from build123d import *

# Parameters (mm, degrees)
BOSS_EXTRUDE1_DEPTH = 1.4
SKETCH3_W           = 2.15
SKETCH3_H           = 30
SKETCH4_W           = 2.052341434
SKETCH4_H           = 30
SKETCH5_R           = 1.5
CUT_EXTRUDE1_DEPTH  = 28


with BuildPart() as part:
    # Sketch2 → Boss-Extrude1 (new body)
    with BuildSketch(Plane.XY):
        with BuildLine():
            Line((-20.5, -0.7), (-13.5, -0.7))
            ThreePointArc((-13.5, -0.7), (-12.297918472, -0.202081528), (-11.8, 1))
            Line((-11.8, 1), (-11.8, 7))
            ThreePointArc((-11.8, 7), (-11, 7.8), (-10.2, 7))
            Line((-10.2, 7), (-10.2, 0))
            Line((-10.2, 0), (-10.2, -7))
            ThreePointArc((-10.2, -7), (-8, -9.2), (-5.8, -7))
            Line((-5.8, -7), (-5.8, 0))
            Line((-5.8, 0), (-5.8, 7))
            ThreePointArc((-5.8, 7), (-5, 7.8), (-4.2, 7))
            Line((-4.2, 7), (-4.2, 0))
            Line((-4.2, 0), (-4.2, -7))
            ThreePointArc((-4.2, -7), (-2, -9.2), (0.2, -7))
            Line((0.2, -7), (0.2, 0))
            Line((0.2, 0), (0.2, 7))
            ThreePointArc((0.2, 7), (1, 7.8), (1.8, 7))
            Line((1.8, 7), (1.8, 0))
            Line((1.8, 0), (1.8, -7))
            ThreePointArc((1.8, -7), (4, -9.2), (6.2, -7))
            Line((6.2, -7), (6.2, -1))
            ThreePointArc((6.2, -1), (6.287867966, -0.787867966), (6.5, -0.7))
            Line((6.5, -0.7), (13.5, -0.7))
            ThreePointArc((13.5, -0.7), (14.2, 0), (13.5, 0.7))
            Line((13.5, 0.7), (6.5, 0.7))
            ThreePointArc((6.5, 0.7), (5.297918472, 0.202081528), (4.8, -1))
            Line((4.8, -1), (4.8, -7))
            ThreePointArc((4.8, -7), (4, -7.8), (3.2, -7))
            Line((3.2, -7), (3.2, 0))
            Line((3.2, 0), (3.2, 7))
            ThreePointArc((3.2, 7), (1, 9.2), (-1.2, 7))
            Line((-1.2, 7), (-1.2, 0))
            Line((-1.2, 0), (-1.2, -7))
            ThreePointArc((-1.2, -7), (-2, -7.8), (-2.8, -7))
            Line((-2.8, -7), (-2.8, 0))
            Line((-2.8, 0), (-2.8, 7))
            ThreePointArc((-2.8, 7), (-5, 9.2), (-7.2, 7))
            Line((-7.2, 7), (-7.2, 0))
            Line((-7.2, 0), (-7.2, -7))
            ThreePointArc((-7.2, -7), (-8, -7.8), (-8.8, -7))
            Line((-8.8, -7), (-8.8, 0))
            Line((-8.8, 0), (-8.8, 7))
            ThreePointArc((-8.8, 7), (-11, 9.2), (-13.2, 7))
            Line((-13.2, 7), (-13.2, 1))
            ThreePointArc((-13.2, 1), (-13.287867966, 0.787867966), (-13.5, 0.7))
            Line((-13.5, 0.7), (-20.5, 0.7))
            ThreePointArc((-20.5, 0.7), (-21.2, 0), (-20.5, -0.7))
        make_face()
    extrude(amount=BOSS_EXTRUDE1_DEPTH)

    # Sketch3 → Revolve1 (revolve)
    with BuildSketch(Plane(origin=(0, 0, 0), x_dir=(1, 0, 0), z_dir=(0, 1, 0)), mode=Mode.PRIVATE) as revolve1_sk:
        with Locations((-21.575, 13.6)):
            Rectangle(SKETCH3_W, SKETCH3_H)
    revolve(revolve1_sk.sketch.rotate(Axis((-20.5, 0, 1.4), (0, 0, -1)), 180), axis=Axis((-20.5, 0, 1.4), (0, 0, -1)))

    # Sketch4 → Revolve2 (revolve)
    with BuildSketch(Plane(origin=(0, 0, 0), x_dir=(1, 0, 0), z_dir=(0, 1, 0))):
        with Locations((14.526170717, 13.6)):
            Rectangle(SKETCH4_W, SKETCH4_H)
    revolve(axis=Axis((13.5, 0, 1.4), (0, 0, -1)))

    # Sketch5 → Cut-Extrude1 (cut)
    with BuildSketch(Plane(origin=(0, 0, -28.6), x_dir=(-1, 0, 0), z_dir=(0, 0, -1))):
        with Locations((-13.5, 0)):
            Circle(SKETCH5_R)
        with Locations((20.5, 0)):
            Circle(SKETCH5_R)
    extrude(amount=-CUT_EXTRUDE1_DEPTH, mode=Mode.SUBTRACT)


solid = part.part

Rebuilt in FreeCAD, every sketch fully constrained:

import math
import FreeCAD as App
import Part
import Sketcher

V = App.Vector


def add_polygon(sketch, points):
    """Adds a closed chain of lines whose ends are joined by coincident constraints."""
    first, n = sketch.GeometryCount, len(points)
    for a, b in zip(points, points[1:] + points[:1]):
        sketch.addGeometry(Part.LineSegment(App.Vector(*a, 0), App.Vector(*b, 0)), False)
    for i in range(n):
        sketch.addConstraint(Sketcher.Constraint("Coincident", first + i, 2, first + (i + 1) % n, 1))

doc = App.newDocument("Part")
body = doc.addObject("PartDesign::Body", "Body")

sketch1 = doc.addObject("Sketcher::SketchObject", "Sketch")
body.addObject(sketch1)
sketch1.AttachmentSupport = (doc.XY_Plane, [""])
sketch1.MapMode = "FlatFace"
sketch1.addGeometry(Part.LineSegment(V(-20.5, -0.7, 0), V(-13.5, -0.7, 0)), False)
sketch1.addGeometry(Part.ArcOfCircle(Part.Circle(V(-13.5, 1, 0), V(0, 0, 1), 1.7), math.radians(-90), math.radians(0)), False)
sketch1.addGeometry(Part.LineSegment(V(-11.8, 1, 0), V(-11.8, 7, 0)), False)
sketch1.addGeometry(Part.ArcOfCircle(Part.Circle(V(-11, 7, 0), V(0, 0, 1), 0.8), math.radians(0), math.radians(180)), False)
sketch1.addGeometry(Part.LineSegment(V(-10.2, 7, 0), V(-10.2, -7, 0)), False)
sketch1.addGeometry(Part.ArcOfCircle(Part.Circle(V(-8, -7, 0), V(0, 0, 1), 2.2), math.radians(180), math.radians(360)), False)
sketch1.addGeometry(Part.LineSegment(V(-5.8, -7, 0), V(-5.8, 7, 0)), False)
sketch1.addGeometry(Part.ArcOfCircle(Part.Circle(V(-5, 7, 0), V(0, 0, 1), 0.8), math.radians(0), math.radians(180)), False)
sketch1.addGeometry(Part.LineSegment(V(-4.2, 7, 0), V(-4.2, -7, 0)), False)
sketch1.addGeometry(Part.ArcOfCircle(Part.Circle(V(-2, -7, 0), V(0, 0, 1), 2.2), math.radians(180), math.radians(360)), False)
sketch1.addGeometry(Part.LineSegment(V(0.2, -7, 0), V(0.2, 7, 0)), False)
sketch1.addGeometry(Part.ArcOfCircle(Part.Circle(V(1, 7, 0), V(0, 0, 1), 0.8), math.radians(0), math.radians(180)), False)
sketch1.addGeometry(Part.LineSegment(V(1.8, 7, 0), V(1.8, -7, 0)), False)
sketch1.addGeometry(Part.ArcOfCircle(Part.Circle(V(4, -7, 0), V(0, 0, 1), 2.2), math.radians(180), math.radians(360)), False)
sketch1.addGeometry(Part.LineSegment(V(6.2, -7, 0), V(6.2, -1, 0)), False)
sketch1.addGeometry(Part.ArcOfCircle(Part.Circle(V(6.5, -1, 0), V(0, 0, 1), 0.3), math.radians(90), math.radians(180)), False)
sketch1.addGeometry(Part.LineSegment(V(6.5, -0.7, 0), V(13.5, -0.7, 0)), False)
sketch1.addGeometry(Part.ArcOfCircle(Part.Circle(V(13.5, 0, 0), V(0, 0, 1), 0.7), math.radians(-90), math.radians(90)), False)
sketch1.addGeometry(Part.LineSegment(V(13.5, 0.7, 0), V(6.5, 0.7, 0)), False)
sketch1.addGeometry(Part.ArcOfCircle(Part.Circle(V(6.5, -1, 0), V(0, 0, 1), 1.7), math.radians(90), math.radians(180)), False)
sketch1.addGeometry(Part.LineSegment(V(4.8, -1, 0), V(4.8, -7, 0)), False)
sketch1.addGeometry(Part.ArcOfCircle(Part.Circle(V(4, -7, 0), V(0, 0, 1), 0.8), math.radians(180), math.radians(360)), False)
sketch1.addGeometry(Part.LineSegment(V(3.2, -7, 0), V(3.2, 7, 0)), False)
sketch1.addGeometry(Part.ArcOfCircle(Part.Circle(V(1, 7, 0), V(0, 0, 1), 2.2), math.radians(0), math.radians(180)), False)
sketch1.addGeometry(Part.LineSegment(V(-1.2, 7, 0), V(-1.2, -7, 0)), False)
sketch1.addGeometry(Part.ArcOfCircle(Part.Circle(V(-2, -7, 0), V(0, 0, 1), 0.8), math.radians(180), math.radians(360)), False)
sketch1.addGeometry(Part.LineSegment(V(-2.8, -7, 0), V(-2.8, 7, 0)), False)
sketch1.addGeometry(Part.ArcOfCircle(Part.Circle(V(-5, 7, 0), V(0, 0, 1), 2.2), math.radians(0), math.radians(180)), False)
sketch1.addGeometry(Part.LineSegment(V(-7.2, 7, 0), V(-7.2, -7, 0)), False)
sketch1.addGeometry(Part.ArcOfCircle(Part.Circle(V(-8, -7, 0), V(0, 0, 1), 0.8), math.radians(180), math.radians(360)), False)
sketch1.addGeometry(Part.LineSegment(V(-8.8, -7, 0), V(-8.8, 7, 0)), False)
sketch1.addGeometry(Part.ArcOfCircle(Part.Circle(V(-11, 7, 0), V(0, 0, 1), 2.2), math.radians(0), math.radians(180)), False)
sketch1.addGeometry(Part.LineSegment(V(-13.2, 7, 0), V(-13.2, 1, 0)), False)
sketch1.addGeometry(Part.ArcOfCircle(Part.Circle(V(-13.5, 1, 0), V(0, 0, 1), 0.3), math.radians(-90), math.radians(0)), False)
sketch1.addGeometry(Part.LineSegment(V(-13.5, 0.7, 0), V(-20.5, 0.7, 0)), False)
sketch1.addGeometry(Part.ArcOfCircle(Part.Circle(V(-20.5, 0, 0), V(0, 0, 1), 0.7), math.radians(90), math.radians(270)), False)
sketch1.addConstraint(Sketcher.Constraint("Tangent", 0, 2, 1, 1))
sketch1.addConstraint(Sketcher.Constraint("Tangent", 1, 2, 2, 1))
sketch1.addConstraint(Sketcher.Constraint("Tangent", 2, 2, 3, 2))
sketch1.addConstraint(Sketcher.Constraint("Tangent", 3, 1, 4, 1))
sketch1.addConstraint(Sketcher.Constraint("Tangent", 4, 2, 5, 1))
sketch1.addConstraint(Sketcher.Constraint("Tangent", 5, 2, 6, 1))
sketch1.addConstraint(Sketcher.Constraint("Tangent", 6, 2, 7, 2))
sketch1.addConstraint(Sketcher.Constraint("Tangent", 7, 1, 8, 1))
sketch1.addConstraint(Sketcher.Constraint("Tangent", 8, 2, 9, 1))
sketch1.addConstraint(Sketcher.Constraint("Tangent", 9, 2, 10, 1))
sketch1.addConstraint(Sketcher.Constraint("Tangent", 10, 2, 11, 2))
sketch1.addConstraint(Sketcher.Constraint("Tangent", 11, 1, 12, 1))
sketch1.addConstraint(Sketcher.Constraint("Tangent", 12, 2, 13, 1))
sketch1.addConstraint(Sketcher.Constraint("Tangent", 13, 2, 14, 1))
sketch1.addConstraint(Sketcher.Constraint("Tangent", 14, 2, 15, 2))
sketch1.addConstraint(Sketcher.Constraint("Tangent", 15, 1, 16, 1))
sketch1.addConstraint(Sketcher.Constraint("Tangent", 16, 2, 17, 1))
sketch1.addConstraint(Sketcher.Constraint("Tangent", 17, 2, 18, 1))
sketch1.addConstraint(Sketcher.Constraint("Tangent", 18, 2, 19, 1))
sketch1.addConstraint(Sketcher.Constraint("Tangent", 19, 2, 20, 1))
sketch1.addConstraint(Sketcher.Constraint("Tangent", 20, 2, 21, 2))
sketch1.addConstraint(Sketcher.Constraint("Tangent", 21, 1, 22, 1))
sketch1.addConstraint(Sketcher.Constraint("Tangent", 22, 2, 23, 1))
sketch1.addConstraint(Sketcher.Constraint("Tangent", 23, 2, 24, 1))
sketch1.addConstraint(Sketcher.Constraint("Tangent", 24, 2, 25, 2))
sketch1.addConstraint(Sketcher.Constraint("Tangent", 25, 1, 26, 1))
sketch1.addConstraint(Sketcher.Constraint("Tangent", 26, 2, 27, 1))
sketch1.addConstraint(Sketcher.Constraint("Tangent", 27, 2, 28, 1))
sketch1.addConstraint(Sketcher.Constraint("Tangent", 28, 2, 29, 2))
sketch1.addConstraint(Sketcher.Constraint("Tangent", 29, 1, 30, 1))
sketch1.addConstraint(Sketcher.Constraint("Tangent", 30, 2, 31, 1))
sketch1.addConstraint(Sketcher.Constraint("Tangent", 31, 2, 32, 1))
sketch1.addConstraint(Sketcher.Constraint("Tangent", 32, 2, 33, 2))
sketch1.addConstraint(Sketcher.Constraint("Tangent", 33, 1, 34, 1))
sketch1.addConstraint(Sketcher.Constraint("Tangent", 34, 2, 35, 1))
sketch1.addConstraint(Sketcher.Constraint("Tangent", 35, 2, 0, 1))
sketch1.addConstraint(Sketcher.Constraint("Horizontal", 0))
sketch1.addConstraint(Sketcher.Constraint("Vertical", 2))
sketch1.addConstraint(Sketcher.Constraint("Vertical", 4))
sketch1.addConstraint(Sketcher.Constraint("Vertical", 6))
sketch1.addConstraint(Sketcher.Constraint("Vertical", 8))
sketch1.addConstraint(Sketcher.Constraint("Vertical", 10))
sketch1.addConstraint(Sketcher.Constraint("Vertical", 12))
sketch1.addConstraint(Sketcher.Constraint("Vertical", 14))
sketch1.addConstraint(Sketcher.Constraint("Horizontal", 16))
sketch1.addConstraint(Sketcher.Constraint("Horizontal", 18))
sketch1.addConstraint(Sketcher.Constraint("Vertical", 20))
sketch1.addConstraint(Sketcher.Constraint("Vertical", 22))
sketch1.addConstraint(Sketcher.Constraint("Vertical", 24))
sketch1.addConstraint(Sketcher.Constraint("Vertical", 26))
sketch1.addConstraint(Sketcher.Constraint("Vertical", 28))
sketch1.addConstraint(Sketcher.Constraint("Vertical", 30))
sketch1.addConstraint(Sketcher.Constraint("Vertical", 32))
sketch1.addConstraint(Sketcher.Constraint("Horizontal", 34))
sketch1.addConstraint(Sketcher.Constraint("Coincident", 19, 3, 15, 3))
sketch1.addConstraint(Sketcher.Constraint("Coincident", 21, 3, 13, 3))
sketch1.addConstraint(Sketcher.Constraint("Coincident", 23, 3, 11, 3))
sketch1.addConstraint(Sketcher.Constraint("Coincident", 25, 3, 9, 3))
sketch1.addConstraint(Sketcher.Constraint("Coincident", 27, 3, 7, 3))
sketch1.addConstraint(Sketcher.Constraint("Coincident", 29, 3, 5, 3))
sketch1.addConstraint(Sketcher.Constraint("Coincident", 31, 3, 3, 3))
sketch1.addConstraint(Sketcher.Constraint("Coincident", 33, 3, 1, 3))
sketch1.addConstraint(Sketcher.Constraint("Equal", 3, 7))
sketch1.addConstraint(Sketcher.Constraint("Equal", 5, 9))
sketch1.addConstraint(Sketcher.Constraint("Equal", 7, 11))
sketch1.addConstraint(Sketcher.Constraint("Equal", 9, 13))
sketch1.addConstraint(Sketcher.Constraint("Equal", 1, 19))
sketch1.addConstraint(Sketcher.Constraint("Equal", 11, 21))
sketch1.addConstraint(Sketcher.Constraint("Symmetric", 0, 2, 17, 2, -1, 1))
sketch1.addConstraint(Sketcher.Constraint("PointOnObject", 17, 3, -1))
sketch1.addConstraint(Sketcher.Constraint("Horizontal", 3, 3, 7, 3))
sketch1.addConstraint(Sketcher.Constraint("Horizontal", 5, 3, 9, 3))
sketch1.addConstraint(Sketcher.Constraint("Horizontal", 7, 3, 11, 3))
sketch1.addConstraint(Sketcher.Constraint("Horizontal", 9, 3, 13, 3))
sketch1.addConstraint(Sketcher.Constraint("Equal", 0, 16))
sketch1.addConstraint(Sketcher.Constraint("Equal", 2, 14))
sketch1.addConstraint(Sketcher.Constraint("Radius", 1, 1.7))
sketch1.addConstraint(Sketcher.Constraint("Radius", 3, 0.8))
sketch1.addConstraint(Sketcher.Constraint("Radius", 5, 2.2))
sketch1.addConstraint(Sketcher.Constraint("DistanceX", 0, 1, 0, 2, 7.0))
sketch1.addConstraint(Sketcher.Constraint("DistanceY", 2, 1, 2, 2, 6.0))
pad1 = doc.addObject("PartDesign::Pad", "Pad")
body.addObject(pad1)
pad1.Profile = sketch1
pad1.Length = 1.4

sketch2 = doc.addObject("Sketcher::SketchObject", "Sketch001")
body.addObject(sketch2)
sketch2.AttachmentSupport = (doc.XZ_Plane, [""])
sketch2.MapMode = "FlatFace"
add_polygon(sketch2, [(-22.6, -28.6), (-22.6, 1.4), (-20.5, 1.4), (-20.5, -28.6)])
sketch2.addGeometry(Part.LineSegment(V(-20.5, 1.4, 0), V(-20.5, -28.6, 0)), True)
sketch2.addConstraint(Sketcher.Constraint("Vertical", 0))
sketch2.addConstraint(Sketcher.Constraint("Horizontal", 1))
sketch2.addConstraint(Sketcher.Constraint("Vertical", 2))
sketch2.addConstraint(Sketcher.Constraint("Horizontal", 3))
sketch2.addConstraint(Sketcher.Constraint("Vertical", 4))
sketch2.addConstraint(Sketcher.Constraint("Coincident", 4, 1, 1, 2))
sketch2.addConstraint(Sketcher.Constraint("Horizontal", 3, 2, 4, 2))
sketch2.addConstraint(Sketcher.Constraint("DistanceY", 0, 1, 0, 2, 30.0))
sketch2.addConstraint(Sketcher.Constraint("DistanceX", 1, 1, 1, 2, 2.15))
sketch2.addConstraint(Sketcher.Constraint("DistanceY", -1, 1, 0, 2, 1.4))
sketch2.addConstraint(Sketcher.Constraint("DistanceX", 1, 2, -1, 1, 20.5))
revolution = doc.addObject("PartDesign::Revolution", "Revolution")
body.addObject(revolution)
revolution.Profile = sketch2
revolution.ReferenceAxis = (sketch2, ["Axis0"])
revolution.Angle = 360

sketch3 = doc.addObject("Sketcher::SketchObject", "Sketch002")
body.addObject(sketch3)
sketch3.AttachmentSupport = (doc.XZ_Plane, [""])
sketch3.MapMode = "FlatFace"
add_polygon(sketch3, [(13.5, -28.6), (13.5, 1.4), (15.6, 1.4), (15.6, -28.6)])
sketch3.addGeometry(Part.LineSegment(V(13.5, 1.4, 0), V(13.5, -28.6, 0)), True)
sketch3.addConstraint(Sketcher.Constraint("Vertical", 0))
sketch3.addConstraint(Sketcher.Constraint("Horizontal", 1))
sketch3.addConstraint(Sketcher.Constraint("Vertical", 2))
sketch3.addConstraint(Sketcher.Constraint("Horizontal", 3))
sketch3.addConstraint(Sketcher.Constraint("Vertical", 4))
sketch3.addConstraint(Sketcher.Constraint("Coincident", 4, 1, 0, 2))
sketch3.addConstraint(Sketcher.Constraint("Horizontal", 2, 2, 4, 2))
sketch3.addConstraint(Sketcher.Constraint("DistanceY", 0, 1, 0, 2, 30.0))
sketch3.addConstraint(Sketcher.Constraint("DistanceX", -1, 1, 0, 2, 13.5))
sketch3.addConstraint(Sketcher.Constraint("DistanceY", -1, 1, 0, 2, 1.4))
sketch3.addConstraint(Sketcher.Constraint("DistanceX", 1, 1, 1, 2, 2.052341))
revolution2 = doc.addObject("PartDesign::Revolution", "Revolution001")
body.addObject(revolution2)
revolution2.Profile = sketch3
revolution2.ReferenceAxis = (sketch3, ["Axis0"])
revolution2.Angle = 360

sketch4 = doc.addObject("Sketcher::SketchObject", "Sketch003")
body.addObject(sketch4)
sketch4.AttachmentSupport = (doc.XY_Plane, [""])
sketch4.MapMode = "FlatFace"
sketch4.AttachmentOffset = App.Placement(V(0, 0, -28.6), App.Rotation())
sketch4.addGeometry(Part.Circle(V(13.5, 0, 0), V(0, 0, 1), 1.5), False)
sketch4.addGeometry(Part.Circle(V(-20.5, 0, 0), V(0, 0, 1), 1.5), False)
sketch4.addConstraint(Sketcher.Constraint("Equal", 0, 1))
sketch4.addConstraint(Sketcher.Constraint("PointOnObject", 0, 3, -1))
sketch4.addConstraint(Sketcher.Constraint("PointOnObject", 1, 3, -1))
sketch4.addConstraint(Sketcher.Constraint("Diameter", 0, 3.0))
sketch4.addConstraint(Sketcher.Constraint("DistanceX", 1, 3, 0, 3, 34.0))
sketch4.addConstraint(Sketcher.Constraint("DistanceX", -1, 1, 0, 3, 13.5))
pocket1 = doc.addObject("PartDesign::Pocket", "Pocket")
body.addObject(pocket1)
pocket1.Profile = sketch4
pocket1.Length = 28
pocket1.Reversed = True

doc.recompute()
